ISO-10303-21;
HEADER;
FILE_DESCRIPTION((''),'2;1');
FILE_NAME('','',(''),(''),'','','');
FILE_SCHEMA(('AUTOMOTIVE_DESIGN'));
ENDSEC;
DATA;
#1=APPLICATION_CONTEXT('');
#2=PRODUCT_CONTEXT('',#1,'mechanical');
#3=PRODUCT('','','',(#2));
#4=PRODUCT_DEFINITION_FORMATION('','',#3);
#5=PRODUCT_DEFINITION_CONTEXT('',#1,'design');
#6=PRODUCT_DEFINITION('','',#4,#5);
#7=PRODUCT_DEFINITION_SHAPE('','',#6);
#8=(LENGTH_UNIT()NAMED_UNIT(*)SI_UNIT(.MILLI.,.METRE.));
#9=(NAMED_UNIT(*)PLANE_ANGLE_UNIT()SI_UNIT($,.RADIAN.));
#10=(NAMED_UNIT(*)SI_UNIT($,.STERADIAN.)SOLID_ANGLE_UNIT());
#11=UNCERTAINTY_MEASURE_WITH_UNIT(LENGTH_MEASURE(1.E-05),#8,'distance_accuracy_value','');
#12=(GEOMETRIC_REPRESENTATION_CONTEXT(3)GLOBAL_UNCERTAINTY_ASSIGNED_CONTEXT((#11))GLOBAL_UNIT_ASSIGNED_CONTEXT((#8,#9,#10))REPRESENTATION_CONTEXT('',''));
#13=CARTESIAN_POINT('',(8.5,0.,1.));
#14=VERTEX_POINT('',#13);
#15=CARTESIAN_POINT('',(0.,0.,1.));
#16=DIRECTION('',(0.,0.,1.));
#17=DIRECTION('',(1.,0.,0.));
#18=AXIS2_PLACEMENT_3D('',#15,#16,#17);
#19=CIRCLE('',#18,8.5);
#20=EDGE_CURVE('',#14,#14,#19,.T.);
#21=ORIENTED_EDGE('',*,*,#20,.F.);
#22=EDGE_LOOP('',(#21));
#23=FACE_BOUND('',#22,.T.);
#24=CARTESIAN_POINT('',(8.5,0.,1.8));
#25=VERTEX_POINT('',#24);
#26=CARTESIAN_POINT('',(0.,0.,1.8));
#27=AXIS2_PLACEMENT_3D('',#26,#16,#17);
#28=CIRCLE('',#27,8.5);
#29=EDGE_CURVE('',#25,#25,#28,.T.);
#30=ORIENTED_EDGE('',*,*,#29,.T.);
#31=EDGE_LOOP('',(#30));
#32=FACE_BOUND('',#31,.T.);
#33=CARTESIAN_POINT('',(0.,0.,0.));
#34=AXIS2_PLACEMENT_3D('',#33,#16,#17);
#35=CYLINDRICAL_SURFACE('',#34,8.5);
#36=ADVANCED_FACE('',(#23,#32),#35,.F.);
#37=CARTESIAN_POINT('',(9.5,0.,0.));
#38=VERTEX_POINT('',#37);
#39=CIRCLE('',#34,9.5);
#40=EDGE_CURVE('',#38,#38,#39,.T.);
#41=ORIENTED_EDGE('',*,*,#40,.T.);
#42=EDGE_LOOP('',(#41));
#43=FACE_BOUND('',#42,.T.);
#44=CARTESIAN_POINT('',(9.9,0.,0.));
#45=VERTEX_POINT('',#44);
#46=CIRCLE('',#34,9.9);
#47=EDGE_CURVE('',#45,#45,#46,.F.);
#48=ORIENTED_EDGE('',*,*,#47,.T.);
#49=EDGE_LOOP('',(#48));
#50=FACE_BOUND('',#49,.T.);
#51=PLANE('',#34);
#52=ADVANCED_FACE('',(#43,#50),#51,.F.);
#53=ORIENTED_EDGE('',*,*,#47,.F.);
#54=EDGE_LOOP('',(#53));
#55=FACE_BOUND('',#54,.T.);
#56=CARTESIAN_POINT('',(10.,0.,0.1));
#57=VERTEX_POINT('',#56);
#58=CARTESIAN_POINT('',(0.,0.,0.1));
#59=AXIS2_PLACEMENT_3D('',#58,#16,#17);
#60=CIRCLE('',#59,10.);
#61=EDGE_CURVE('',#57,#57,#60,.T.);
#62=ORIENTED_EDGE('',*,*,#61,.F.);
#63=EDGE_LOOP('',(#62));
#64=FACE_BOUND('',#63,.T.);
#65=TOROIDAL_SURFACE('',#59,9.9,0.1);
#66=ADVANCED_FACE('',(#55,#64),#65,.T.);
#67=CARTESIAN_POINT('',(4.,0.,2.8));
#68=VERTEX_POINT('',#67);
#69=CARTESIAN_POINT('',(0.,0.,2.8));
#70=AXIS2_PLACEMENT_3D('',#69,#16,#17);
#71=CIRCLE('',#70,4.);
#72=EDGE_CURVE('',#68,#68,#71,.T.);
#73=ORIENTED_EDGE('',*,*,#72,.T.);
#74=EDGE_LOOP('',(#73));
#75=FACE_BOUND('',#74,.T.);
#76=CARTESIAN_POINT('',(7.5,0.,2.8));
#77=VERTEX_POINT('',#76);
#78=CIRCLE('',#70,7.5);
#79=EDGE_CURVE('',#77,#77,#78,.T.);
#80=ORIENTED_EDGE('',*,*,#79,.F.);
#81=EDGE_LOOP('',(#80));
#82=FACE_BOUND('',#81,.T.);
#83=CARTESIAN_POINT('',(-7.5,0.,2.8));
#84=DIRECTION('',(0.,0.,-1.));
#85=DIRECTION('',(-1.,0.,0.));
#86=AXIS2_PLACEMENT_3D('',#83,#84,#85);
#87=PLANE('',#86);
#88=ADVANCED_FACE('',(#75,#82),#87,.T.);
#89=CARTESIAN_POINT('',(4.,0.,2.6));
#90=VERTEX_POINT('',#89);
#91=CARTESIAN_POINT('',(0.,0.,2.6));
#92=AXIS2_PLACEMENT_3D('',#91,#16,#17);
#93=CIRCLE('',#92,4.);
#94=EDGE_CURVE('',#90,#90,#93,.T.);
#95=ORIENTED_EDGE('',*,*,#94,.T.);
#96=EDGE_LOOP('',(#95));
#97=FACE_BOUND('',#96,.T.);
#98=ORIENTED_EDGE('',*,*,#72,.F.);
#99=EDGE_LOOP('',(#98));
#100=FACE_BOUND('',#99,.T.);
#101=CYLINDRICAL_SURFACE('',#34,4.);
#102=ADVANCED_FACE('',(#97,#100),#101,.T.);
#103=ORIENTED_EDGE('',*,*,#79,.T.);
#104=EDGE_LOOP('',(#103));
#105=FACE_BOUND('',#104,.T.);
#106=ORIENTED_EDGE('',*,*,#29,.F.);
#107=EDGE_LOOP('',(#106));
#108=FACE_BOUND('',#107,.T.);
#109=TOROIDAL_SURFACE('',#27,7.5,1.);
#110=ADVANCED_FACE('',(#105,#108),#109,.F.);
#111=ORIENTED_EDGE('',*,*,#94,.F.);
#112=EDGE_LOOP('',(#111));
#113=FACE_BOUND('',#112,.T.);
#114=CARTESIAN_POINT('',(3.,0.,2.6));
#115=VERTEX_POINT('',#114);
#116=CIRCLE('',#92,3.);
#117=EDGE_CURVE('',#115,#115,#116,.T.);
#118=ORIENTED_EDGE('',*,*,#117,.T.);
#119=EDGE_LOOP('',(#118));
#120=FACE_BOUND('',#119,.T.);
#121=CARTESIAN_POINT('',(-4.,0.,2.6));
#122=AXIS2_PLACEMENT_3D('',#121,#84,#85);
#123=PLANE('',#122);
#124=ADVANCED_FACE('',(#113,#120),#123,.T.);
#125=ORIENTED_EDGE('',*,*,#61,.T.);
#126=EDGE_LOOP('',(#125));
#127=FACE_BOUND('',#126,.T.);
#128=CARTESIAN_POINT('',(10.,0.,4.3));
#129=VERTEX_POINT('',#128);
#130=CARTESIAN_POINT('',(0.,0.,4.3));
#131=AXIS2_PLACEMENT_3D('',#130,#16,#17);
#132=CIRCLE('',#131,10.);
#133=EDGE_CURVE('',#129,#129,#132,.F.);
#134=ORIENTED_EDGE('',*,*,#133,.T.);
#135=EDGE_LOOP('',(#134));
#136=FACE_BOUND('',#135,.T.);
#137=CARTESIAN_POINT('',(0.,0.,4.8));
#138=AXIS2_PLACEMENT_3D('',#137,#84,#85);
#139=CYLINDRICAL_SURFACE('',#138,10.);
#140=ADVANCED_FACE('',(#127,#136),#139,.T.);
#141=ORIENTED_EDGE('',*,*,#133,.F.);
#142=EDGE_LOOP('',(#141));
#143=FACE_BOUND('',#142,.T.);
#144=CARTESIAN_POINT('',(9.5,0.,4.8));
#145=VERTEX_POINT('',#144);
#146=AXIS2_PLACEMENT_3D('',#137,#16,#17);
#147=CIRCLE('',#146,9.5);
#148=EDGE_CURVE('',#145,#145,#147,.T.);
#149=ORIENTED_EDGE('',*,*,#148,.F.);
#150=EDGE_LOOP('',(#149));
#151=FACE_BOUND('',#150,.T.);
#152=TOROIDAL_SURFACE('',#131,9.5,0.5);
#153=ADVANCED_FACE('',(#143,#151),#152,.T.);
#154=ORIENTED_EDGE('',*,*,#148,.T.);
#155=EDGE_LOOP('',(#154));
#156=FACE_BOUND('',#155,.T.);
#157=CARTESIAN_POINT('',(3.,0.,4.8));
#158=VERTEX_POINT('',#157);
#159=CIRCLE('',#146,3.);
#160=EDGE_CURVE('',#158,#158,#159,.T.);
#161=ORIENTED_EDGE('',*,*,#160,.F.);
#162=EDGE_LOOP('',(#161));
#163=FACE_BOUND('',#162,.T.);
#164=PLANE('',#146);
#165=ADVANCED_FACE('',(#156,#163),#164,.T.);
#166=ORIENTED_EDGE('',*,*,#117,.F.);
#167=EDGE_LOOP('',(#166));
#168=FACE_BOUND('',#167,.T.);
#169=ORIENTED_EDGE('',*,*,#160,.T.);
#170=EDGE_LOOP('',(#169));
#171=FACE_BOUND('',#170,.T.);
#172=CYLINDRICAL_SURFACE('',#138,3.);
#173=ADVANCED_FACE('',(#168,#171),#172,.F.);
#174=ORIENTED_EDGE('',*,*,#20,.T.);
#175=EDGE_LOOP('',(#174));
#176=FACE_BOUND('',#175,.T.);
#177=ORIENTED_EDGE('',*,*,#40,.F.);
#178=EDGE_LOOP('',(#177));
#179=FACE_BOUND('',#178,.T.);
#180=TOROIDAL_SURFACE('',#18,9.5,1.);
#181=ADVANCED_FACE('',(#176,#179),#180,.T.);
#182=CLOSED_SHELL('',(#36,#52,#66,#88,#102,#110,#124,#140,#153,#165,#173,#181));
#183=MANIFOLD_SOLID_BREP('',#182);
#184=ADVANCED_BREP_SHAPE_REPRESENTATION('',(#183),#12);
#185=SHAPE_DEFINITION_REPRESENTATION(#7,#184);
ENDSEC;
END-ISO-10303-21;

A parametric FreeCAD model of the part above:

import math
import FreeCAD as App
import Part
import Sketcher
from FreeCAD import Vector
Q = App.Units.Quantity


def edges_at(feature, points):
    """Names of the edges that pass closest to the given points."""
    edges = feature.Shape.Edges
    near = lambda p: min(range(len(edges)), key=lambda i: edges[i].distToShape(Part.Vertex(*p))[0])
    return sorted({f"Edge{near(p) + 1}" for p in points})

doc = App.newDocument("Part")
body = doc.addObject("PartDesign::Body", "Body")

sketch1 = body.newObject("Sketcher::SketchObject", "Sketch")
sketch1.AttachmentSupport = (doc.getObject("XY_Plane"), [""])
sketch1.MapMode = "FlatFace"
sketch1.addGeometry([
    Part.Circle(Vector(0, 0, 0), Vector(0, 0, 1), 10),
    Part.Circle(Vector(0, 0, 0), Vector(0, 0, 1), 3),
], False)
sketch1.addConstraint([
    Sketcher.Constraint("Coincident", 0, 3, -1, 1),
    Sketcher.Constraint("Coincident", 1, 3, -1, 1),
    Sketcher.Constraint("Diameter", 0, Q("20 mm")),
    Sketcher.Constraint("Diameter", 1, Q("6 mm")),
])
pad1 = body.newObject("PartDesign::Pad", "Pad")
pad1.Profile = sketch1
pad1.Length = 4.8

sketch2 = body.newObject("Sketcher::SketchObject", "Sketch001")
sketch2.AttachmentSupport = (doc.getObject("XZ_Plane"), [""])
sketch2.MapMode = "FlatFace"
sketch2.addGeometry([
    Part.LineSegment(Vector(-8.5, 1, 0), Vector(-8.5, 1.8, 0)),
    Part.ArcOfCircle(Part.Circle(Vector(-7.5, 1.8, 0), Vector(0, 0, 1), 1), math.radians(90), math.radians(180)),
    Part.LineSegment(Vector(-7.5, 2.8, 0), Vector(-4, 2.8, 0)),
    Part.LineSegment(Vector(-4, 2.8, 0), Vector(-4, 2.6, 0)),
    Part.LineSegment(Vector(-4, 2.6, 0), Vector(-3, 2.6, 0)),
    Part.LineSegment(Vector(-3, 2.6, 0), Vector(-3, 0, 0)),
    Part.LineSegment(Vector(-3, 0, 0), Vector(-9.5, 0, 0)),
    Part.ArcOfCircle(Part.Circle(Vector(-9.5, 1, 0), Vector(0, 0, 1), 1), math.radians(-90), math.radians(0)),
], False)
sketch2.addConstraint([
    Sketcher.Constraint("Tangent", 0, 2, 1, 2),
    Sketcher.Constraint("Tangent", 1, 1, 2, 1),
    Sketcher.Constraint("Coincident", 2, 2, 3, 1),
    Sketcher.Constraint("Coincident", 3, 2, 4, 1),
    Sketcher.Constraint("Coincident", 4, 2, 5, 1),
    Sketcher.Constraint("Coincident", 5, 2, 6, 1),
    Sketcher.Constraint("Tangent", 6, 2, 7, 1),
    Sketcher.Constraint("Tangent", 7, 2, 0, 1),
    Sketcher.Constraint("Vertical", 0),
    Sketcher.Constraint("Horizontal", 2),
    Sketcher.Constraint("Vertical", 3),
    Sketcher.Constraint("Horizontal", 4),
    Sketcher.Constraint("Vertical", 5),
    Sketcher.Constraint("Horizontal", 6),
    Sketcher.Constraint("Equal", 1, 7),
    Sketcher.Constraint("PointOnObject", 5, 2, -1),
    Sketcher.Constraint("Radius", 1, Q("1 mm")),
    Sketcher.Constraint("DistanceX", 4, 1, 4, 2, Q("1 mm")),
    Sketcher.Constraint("DistanceX", 2, 1, 2, 2, Q("3.5 mm")),
    Sketcher.Constraint("DistanceY", 0, 1, 0, 2, Q("0.8 mm")),
    Sketcher.Constraint("DistanceY", 3, 2, 3, 1, Q("0.2 mm")),
    Sketcher.Constraint("DistanceX", 2, 2, -1, 1, Q("4 mm")),
])
groove = body.newObject("PartDesign::Groove", "Groove")
groove.Profile = sketch2
groove.ReferenceAxis = (sketch2, ["V_Axis"])
groove.Angle = 360
doc.recompute()

fillet = body.newObject("PartDesign::Fillet", "Fillet")
fillet.Base = (groove, edges_at(groove, [(-10, 0, 4.8)]))
fillet.Radius = 0.5
doc.recompute()

fillet2 = body.newObject("PartDesign::Fillet", "Fillet001")
fillet2.Base = (fillet, edges_at(fillet, [(-10, 0, 0)]))
fillet2.Radius = 0.1

doc.recompute()
